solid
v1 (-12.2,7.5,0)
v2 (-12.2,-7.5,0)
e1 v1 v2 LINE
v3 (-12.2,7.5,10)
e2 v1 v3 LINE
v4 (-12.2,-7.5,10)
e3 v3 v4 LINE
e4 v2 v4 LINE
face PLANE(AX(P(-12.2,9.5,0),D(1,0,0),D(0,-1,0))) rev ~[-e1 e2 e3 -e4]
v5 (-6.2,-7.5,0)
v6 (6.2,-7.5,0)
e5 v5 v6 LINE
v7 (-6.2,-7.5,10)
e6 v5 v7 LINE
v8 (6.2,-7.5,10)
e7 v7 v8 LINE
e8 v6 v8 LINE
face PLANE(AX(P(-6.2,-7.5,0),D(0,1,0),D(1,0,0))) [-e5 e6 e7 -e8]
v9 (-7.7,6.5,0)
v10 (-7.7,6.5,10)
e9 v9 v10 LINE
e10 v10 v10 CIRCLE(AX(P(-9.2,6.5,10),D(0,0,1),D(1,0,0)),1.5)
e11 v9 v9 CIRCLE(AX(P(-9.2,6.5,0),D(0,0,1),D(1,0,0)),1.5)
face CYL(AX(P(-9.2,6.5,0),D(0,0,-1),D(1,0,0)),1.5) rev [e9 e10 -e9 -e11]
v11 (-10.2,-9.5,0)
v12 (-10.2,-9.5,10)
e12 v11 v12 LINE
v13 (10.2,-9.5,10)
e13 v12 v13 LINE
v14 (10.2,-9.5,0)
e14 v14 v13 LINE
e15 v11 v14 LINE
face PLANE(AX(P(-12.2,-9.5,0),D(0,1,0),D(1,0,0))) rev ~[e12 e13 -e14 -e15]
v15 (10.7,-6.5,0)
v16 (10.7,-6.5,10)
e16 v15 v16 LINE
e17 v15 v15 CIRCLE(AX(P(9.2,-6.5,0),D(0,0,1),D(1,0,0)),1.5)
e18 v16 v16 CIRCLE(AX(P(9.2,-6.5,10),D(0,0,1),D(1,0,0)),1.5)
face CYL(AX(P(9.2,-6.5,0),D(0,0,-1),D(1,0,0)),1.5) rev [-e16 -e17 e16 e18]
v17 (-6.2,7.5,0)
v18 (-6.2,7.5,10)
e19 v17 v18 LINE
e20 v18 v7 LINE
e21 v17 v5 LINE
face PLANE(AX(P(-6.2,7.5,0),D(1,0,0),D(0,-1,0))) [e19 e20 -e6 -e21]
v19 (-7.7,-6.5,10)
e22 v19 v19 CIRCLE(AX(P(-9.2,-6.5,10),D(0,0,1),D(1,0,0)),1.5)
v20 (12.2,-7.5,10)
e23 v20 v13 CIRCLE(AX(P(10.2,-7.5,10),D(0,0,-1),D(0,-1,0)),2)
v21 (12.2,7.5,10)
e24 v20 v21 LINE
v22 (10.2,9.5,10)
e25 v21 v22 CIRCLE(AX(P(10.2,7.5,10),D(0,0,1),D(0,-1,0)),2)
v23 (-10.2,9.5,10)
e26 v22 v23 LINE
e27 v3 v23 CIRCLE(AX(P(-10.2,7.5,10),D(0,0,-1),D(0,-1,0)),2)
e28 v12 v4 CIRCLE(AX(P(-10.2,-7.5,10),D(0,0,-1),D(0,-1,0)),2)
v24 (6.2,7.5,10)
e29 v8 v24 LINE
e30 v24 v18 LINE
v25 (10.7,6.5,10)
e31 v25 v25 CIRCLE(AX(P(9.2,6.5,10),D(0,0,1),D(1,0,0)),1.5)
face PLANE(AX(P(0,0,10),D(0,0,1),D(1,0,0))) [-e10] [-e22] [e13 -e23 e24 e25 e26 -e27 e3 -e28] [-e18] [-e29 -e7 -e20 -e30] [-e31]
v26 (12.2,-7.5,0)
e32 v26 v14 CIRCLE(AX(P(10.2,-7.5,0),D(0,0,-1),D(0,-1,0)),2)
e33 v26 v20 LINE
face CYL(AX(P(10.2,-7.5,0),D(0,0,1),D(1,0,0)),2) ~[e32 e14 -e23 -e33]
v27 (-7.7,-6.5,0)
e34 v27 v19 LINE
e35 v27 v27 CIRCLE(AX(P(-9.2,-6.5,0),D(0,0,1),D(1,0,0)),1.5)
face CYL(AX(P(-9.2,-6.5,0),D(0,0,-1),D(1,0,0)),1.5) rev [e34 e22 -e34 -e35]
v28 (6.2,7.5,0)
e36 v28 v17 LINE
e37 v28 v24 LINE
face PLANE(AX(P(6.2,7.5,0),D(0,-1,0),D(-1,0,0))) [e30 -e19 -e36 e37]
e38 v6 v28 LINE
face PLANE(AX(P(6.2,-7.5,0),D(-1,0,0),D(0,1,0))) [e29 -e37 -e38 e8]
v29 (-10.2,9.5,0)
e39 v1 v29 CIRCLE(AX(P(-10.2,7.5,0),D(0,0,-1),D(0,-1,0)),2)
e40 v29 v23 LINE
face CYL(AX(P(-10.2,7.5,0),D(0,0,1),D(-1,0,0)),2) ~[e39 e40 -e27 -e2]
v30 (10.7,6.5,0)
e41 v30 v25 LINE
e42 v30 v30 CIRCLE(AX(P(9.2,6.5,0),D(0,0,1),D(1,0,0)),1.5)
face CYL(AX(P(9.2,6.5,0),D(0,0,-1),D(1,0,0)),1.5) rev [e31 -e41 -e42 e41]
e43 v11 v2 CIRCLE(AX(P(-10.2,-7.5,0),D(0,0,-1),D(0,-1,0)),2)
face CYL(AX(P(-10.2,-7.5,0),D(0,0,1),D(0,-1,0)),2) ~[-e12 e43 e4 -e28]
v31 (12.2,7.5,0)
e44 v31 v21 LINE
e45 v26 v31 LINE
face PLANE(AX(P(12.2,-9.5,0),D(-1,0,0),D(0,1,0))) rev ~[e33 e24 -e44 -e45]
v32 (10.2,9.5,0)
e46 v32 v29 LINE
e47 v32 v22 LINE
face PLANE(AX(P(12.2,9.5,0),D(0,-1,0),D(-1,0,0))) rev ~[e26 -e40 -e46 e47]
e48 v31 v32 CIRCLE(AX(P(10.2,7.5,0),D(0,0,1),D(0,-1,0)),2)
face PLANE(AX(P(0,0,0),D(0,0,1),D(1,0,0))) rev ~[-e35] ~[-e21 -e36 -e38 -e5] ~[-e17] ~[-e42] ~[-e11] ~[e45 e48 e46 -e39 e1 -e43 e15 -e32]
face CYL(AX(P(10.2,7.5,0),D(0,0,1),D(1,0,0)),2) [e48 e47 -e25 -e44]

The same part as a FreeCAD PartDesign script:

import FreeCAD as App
import Part
import Sketcher
from FreeCAD import Vector


def edges_at(feature, points):
    """Names of the edges that pass closest to the given points."""
    edges = feature.Shape.Edges
    near = lambda p: min(range(len(edges)), key=lambda i: edges[i].distToShape(Part.Vertex(*p))[0])
    return sorted({f"Edge{near(p) + 1}" for p in points})

doc = App.newDocument("Part")
params = doc.addObject("Spreadsheet::Sheet", "Params")
for row, (alias, value) in enumerate([
    ("sketch1_diameter", "3 mm"),
    ("pad1_length", "10 mm"),
    ("fillet_radius", "2 mm"),
], start=1):
    params.set(f"A{row}", alias)
    params.set(f"B{row}", "=" + value)
    params.setAlias(f"B{row}", alias)

body = doc.addObject("PartDesign::Body", "Body")

# Sketch on XY plane
sketch1 = body.newObject("Sketcher::SketchObject", "Sketch")
sketch1.AttachmentSupport = (doc.getObject("XY_Plane"), [""])
sketch1.MapMode = "FlatFace"
sketch1.addGeometry(Part.LineSegment(Vector(12.2, -9.5, 0), Vector(12.2, 9.5, 0)), False)
sketch1.addGeometry(Part.LineSegment(Vector(12.2, 9.5, 0), Vector(-12.2, 9.5, 0)), False)
sketch1.addGeometry(Part.LineSegment(Vector(-12.2, 9.5, 0), Vector(-12.2, -9.5, 0)), False)
sketch1.addGeometry(Part.LineSegment(Vector(-12.2, -9.5, 0), Vector(12.2, -9.5, 0)), False)
sketch1.addGeometry(Part.Circle(Vector(-9.2, -6.5, 0), Vector(0, 0, 1), 1.5), False)
sketch1.addGeometry(Part.Circle(Vector(9.2, -6.5, 0), Vector(0, 0, 1), 1.5), False)
sketch1.addGeometry(Part.Circle(Vector(-9.2, 6.5, 0), Vector(0, 0, 1), 1.5), False)
sketch1.addGeometry(Part.LineSegment(Vector(-6.2, 7.5, 0), Vector(6.2, 7.5, 0)), False)
sketch1.addGeometry(Part.LineSegment(Vector(6.2, 7.5, 0), Vector(6.2, -7.5, 0)), False)
sketch1.addGeometry(Part.LineSegment(Vector(6.2, -7.5, 0), Vector(-6.2, -7.5, 0)), False)
sketch1.addGeometry(Part.LineSegment(Vector(-6.2, -7.5, 0), Vector(-6.2, 7.5, 0)), False)
sketch1.addGeometry(Part.Circle(Vector(9.2, 6.5, 0), Vector(0, 0, 1), 1.5), False)
sketch1.addConstraint(Sketcher.Constraint("Coincident", 0, 2, 1, 1))
sketch1.addConstraint(Sketcher.Constraint("Coincident", 1, 2, 2, 1))
sketch1.addConstraint(Sketcher.Constraint("Coincident", 2, 2, 3, 1))
sketch1.addConstraint(Sketcher.Constraint("Coincident", 3, 2, 0, 1))
sketch1.addConstraint(Sketcher.Constraint("Coincident", 7, 2, 8, 1))
sketch1.addConstraint(Sketcher.Constraint("Coincident", 8, 2, 9, 1))
sketch1.addConstraint(Sketcher.Constraint("Coincident", 9, 2, 10, 1))
sketch1.addConstraint(Sketcher.Constraint("Coincident", 10, 2, 7, 1))
sketch1.addConstraint(Sketcher.Constraint("Vertical", 0))
sketch1.addConstraint(Sketcher.Constraint("Horizontal", 1))
sketch1.addConstraint(Sketcher.Constraint("Vertical", 2))
sketch1.addConstraint(Sketcher.Constraint("Horizontal", 3))
sketch1.addConstraint(Sketcher.Constraint("Horizontal", 7))
sketch1.addConstraint(Sketcher.Constraint("Vertical", 8))
sketch1.addConstraint(Sketcher.Constraint("Horizontal", 9))
sketch1.addConstraint(Sketcher.Constraint("Vertical", 10))
sketch1.addConstraint(Sketcher.Constraint("Equal", 4, 5))
sketch1.addConstraint(Sketcher.Constraint("Equal", 5, 6))
sketch1.addConstraint(Sketcher.Constraint("Equal", 6, 11))
sketch1.addConstraint(Sketcher.Constraint("Symmetric", 5, 3, 6, 3, -1, 1))
sketch1.addConstraint(Sketcher.Constraint("Symmetric", 4, 3, 11, 3, -1, 1))
sketch1.addConstraint(Sketcher.Constraint("Symmetric", 0, 2, 2, 2, -1, 1))
sketch1.addConstraint(Sketcher.Constraint("Symmetric", 7, 2, 9, 2, -1, 1))
sketch1.addConstraint(Sketcher.Constraint("Symmetric", 4, 3, 5, 3, -2))
sketch1.addConstraint(Sketcher.Constraint("Diameter", 4, 3.0))
sketch1.addConstraint(Sketcher.Constraint("DistanceY", 4, 3, 6, 3, 13.0))
sketch1.addConstraint(Sketcher.Constraint("DistanceX", 11, 3, 0, 2, 3.0))
sketch1.addConstraint(Sketcher.Constraint("DistanceY", 11, 3, 0, 2, 3.0))
sketch1.addConstraint(Sketcher.Constraint("DistanceX", 7, 2, 11, 3, 3.0))
sketch1.addConstraint(Sketcher.Constraint("DistanceY", 7, 2, 0, 2, 2.0))
sketch1.addConstraint(Sketcher.Constraint("DistanceX", 4, 3, 5, 3, 18.4))
sketch1.setExpression("Constraints[24]", "Params.sketch1_diameter")
pad1 = body.newObject("PartDesign::Pad", "Pad")
pad1.Profile = sketch1
pad1.setExpression("Length", "Params.pad1_length")
doc.recompute()

fillet = body.newObject("PartDesign::Fillet", "Fillet")
fillet.Base = (pad1, edges_at(pad1, [
    (12.2, -9.5, 5),
    (-12.2, -9.5, 5),
    (12.2, 9.5, 5),
    (-12.2, 9.5, 5),
]))
fillet.setExpression("Radius", "Params.fillet_radius")

doc.recompute()
